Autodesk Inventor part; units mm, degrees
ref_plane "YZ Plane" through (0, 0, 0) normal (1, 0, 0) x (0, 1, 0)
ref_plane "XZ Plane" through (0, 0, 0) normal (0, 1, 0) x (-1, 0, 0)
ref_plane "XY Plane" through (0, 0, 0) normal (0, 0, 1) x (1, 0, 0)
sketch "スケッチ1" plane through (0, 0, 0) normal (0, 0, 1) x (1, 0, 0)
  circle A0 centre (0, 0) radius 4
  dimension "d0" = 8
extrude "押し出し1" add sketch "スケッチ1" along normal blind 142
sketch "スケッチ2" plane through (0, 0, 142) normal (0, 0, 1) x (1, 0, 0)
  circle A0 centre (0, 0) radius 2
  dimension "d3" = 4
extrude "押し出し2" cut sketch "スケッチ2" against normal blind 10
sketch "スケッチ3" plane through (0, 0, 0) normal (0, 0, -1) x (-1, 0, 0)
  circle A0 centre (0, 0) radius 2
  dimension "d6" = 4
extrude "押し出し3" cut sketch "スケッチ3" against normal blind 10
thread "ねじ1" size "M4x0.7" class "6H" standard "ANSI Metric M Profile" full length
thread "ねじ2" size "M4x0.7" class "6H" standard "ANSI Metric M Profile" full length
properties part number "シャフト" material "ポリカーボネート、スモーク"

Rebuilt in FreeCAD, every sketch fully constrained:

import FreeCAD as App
import Part
import Sketcher

doc = App.newDocument("Part")
params = doc.addObject("Spreadsheet::Sheet", "Params")
for row, (alias, value) in enumerate([
    ("sketch1_diameter", "8 mm"),
    ("pad1_length", "142 mm"),
    ("sketch2_diameter", "4 mm"),
    ("pocket1_length", "10 mm"),
    ("sketch3_diameter", "4 mm"),
    ("pocket2_length", "10 mm"),
], start=1):
    params.set(f"A{row}", alias)
    params.set(f"B{row}", "=" + value)
    params.setAlias(f"B{row}", alias)

body = doc.addObject("PartDesign::Body", "Body")

# Sketch on XY plane
sketch1 = body.newObject("Sketcher::SketchObject", "Sketch")
sketch1.AttachmentSupport = (doc.getObject("XY_Plane"), [""])
sketch1.MapMode = "FlatFace"
sketch1.addGeometry(Part.Circle(App.Vector(0, 0, 0), App.Vector(0, 0, 1), 4), False)
sketch1.addConstraint(Sketcher.Constraint("Coincident", 0, 3, -1, 1))
sketch1.addConstraint(Sketcher.Constraint("Diameter", 0, 8.0))
sketch1.setExpression("Constraints[1]", "Params.sketch1_diameter")
pad1 = body.newObject("PartDesign::Pad", "Pad")
pad1.Profile = sketch1
pad1.setExpression("Length", "Params.pad1_length")

# Sketch on XY plane
sketch2 = body.newObject("Sketcher::SketchObject", "Sketch001")
sketch2.AttachmentSupport = (doc.getObject("XY_Plane"), [""])
sketch2.MapMode = "FlatFace"
sketch2.AttachmentOffset = App.Placement(App.Vector(0, 0, 142), App.Rotation())
sketch2.addGeometry(Part.Circle(App.Vector(0, 0, 0), App.Vector(0, 0, 1), 2), False)
sketch2.addConstraint(Sketcher.Constraint("Coincident", 0, 3, -1, 1))
sketch2.addConstraint(Sketcher.Constraint("Diameter", 0, 4.0))
sketch2.setExpression("Constraints[1]", "Params.sketch2_diameter")
pocket1 = body.newObject("PartDesign::Pocket", "Pocket")
pocket1.Profile = sketch2
pocket1.setExpression("Length", "Params.pocket1_length")

# Sketch on XY plane
sketch3 = body.newObject("Sketcher::SketchObject", "Sketch002")
sketch3.AttachmentSupport = (doc.getObject("XY_Plane"), [""])
sketch3.MapMode = "FlatFace"
sketch3.addGeometry(Part.Circle(App.Vector(0, 0, 0), App.Vector(0, 0, 1), 2), False)
sketch3.addConstraint(Sketcher.Constraint("Coincident", 0, 3, -1, 1))
sketch3.addConstraint(Sketcher.Constraint("Diameter", 0, 4.0))
sketch3.setExpression("Constraints[1]", "Params.sketch3_diameter")
pocket2 = body.newObject("PartDesign::Pocket", "Pocket001")
pocket2.Profile = sketch3
pocket2.setExpression("Length", "Params.pocket2_length")
pocket2.Reversed = True

doc.recompute()
